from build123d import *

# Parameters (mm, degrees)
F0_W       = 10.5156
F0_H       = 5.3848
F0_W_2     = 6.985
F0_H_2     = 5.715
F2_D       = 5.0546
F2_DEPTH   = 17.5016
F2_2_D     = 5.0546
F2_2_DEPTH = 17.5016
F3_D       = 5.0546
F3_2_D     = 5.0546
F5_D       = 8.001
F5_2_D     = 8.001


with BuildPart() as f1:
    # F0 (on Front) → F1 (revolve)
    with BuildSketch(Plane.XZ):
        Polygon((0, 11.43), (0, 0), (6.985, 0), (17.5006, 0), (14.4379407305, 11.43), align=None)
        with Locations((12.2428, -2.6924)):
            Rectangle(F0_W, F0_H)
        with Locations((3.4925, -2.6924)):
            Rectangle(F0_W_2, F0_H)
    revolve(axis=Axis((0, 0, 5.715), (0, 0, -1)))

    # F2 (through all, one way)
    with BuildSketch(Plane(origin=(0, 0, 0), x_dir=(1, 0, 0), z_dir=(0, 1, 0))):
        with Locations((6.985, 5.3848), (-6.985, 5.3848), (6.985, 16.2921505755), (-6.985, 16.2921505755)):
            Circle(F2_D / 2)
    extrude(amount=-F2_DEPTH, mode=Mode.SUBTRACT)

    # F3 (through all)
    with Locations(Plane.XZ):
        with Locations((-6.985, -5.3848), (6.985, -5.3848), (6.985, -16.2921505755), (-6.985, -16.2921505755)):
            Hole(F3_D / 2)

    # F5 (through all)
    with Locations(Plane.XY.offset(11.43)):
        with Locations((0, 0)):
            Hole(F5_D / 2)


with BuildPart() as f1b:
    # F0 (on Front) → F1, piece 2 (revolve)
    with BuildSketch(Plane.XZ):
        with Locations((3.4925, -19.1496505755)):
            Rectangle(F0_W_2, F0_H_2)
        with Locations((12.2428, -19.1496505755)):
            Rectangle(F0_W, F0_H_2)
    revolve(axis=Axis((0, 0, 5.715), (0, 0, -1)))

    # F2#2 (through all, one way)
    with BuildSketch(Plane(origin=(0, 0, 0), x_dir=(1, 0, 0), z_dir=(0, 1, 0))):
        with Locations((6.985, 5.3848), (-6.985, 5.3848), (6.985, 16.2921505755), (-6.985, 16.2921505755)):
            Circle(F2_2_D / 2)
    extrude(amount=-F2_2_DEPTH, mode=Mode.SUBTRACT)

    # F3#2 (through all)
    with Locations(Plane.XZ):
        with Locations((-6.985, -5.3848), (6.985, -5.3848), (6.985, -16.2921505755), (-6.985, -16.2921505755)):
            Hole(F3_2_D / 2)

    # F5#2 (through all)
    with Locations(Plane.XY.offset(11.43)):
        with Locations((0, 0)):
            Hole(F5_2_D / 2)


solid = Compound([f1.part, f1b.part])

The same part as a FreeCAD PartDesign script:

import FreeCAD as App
import Part
import Sketcher
from FreeCAD import Vector
Q = App.Units.Quantity

doc = App.newDocument("Part")
body = doc.addObject("PartDesign::Body", "Body")

sketch1 = body.newObject("Sketcher::SketchObject", "Sketch")
sketch1.AttachmentSupport = (doc.getObject("XZ_Plane"), [""])
sketch1.MapMode = "FlatFace"
sketch1.addGeometry([
    Part.LineSegment(Vector(0, 11, 0), Vector(0, -5, 0)),
    Part.LineSegment(Vector(0, -5, 0), Vector(18, -5, 0)),
    Part.LineSegment(Vector(18, -5, 0), Vector(18, 0, 0)),
    Part.LineSegment(Vector(18, 0, 0), Vector(14, 11, 0)),
    Part.LineSegment(Vector(14, 11, 0), Vector(0, 11, 0)),
], False)
sketch1.addConstraint([
    Sketcher.Constraint("Coincident", 0, 2, 1, 1),
    Sketcher.Constraint("Coincident", 1, 2, 2, 1),
    Sketcher.Constraint("Coincident", 2, 2, 3, 1),
    Sketcher.Constraint("Coincident", 3, 2, 4, 1),
    Sketcher.Constraint("Coincident", 4, 2, 0, 1),
    Sketcher.Constraint("Vertical", 0),
    Sketcher.Constraint("Horizontal", 1),
    Sketcher.Constraint("Vertical", 2),
    Sketcher.Constraint("Horizontal", 4),
    Sketcher.Constraint("PointOnObject", 0, 2, -2),
    Sketcher.Constraint("PointOnObject", 2, 2, -1),
    Sketcher.Constraint("Angle", 3, Q("105 deg")),
    Sketcher.Constraint("DistanceX", 1, 1, 1, 2, Q("0.689 in")),
    Sketcher.Constraint("DistanceY", 0, 2, 0, 1, Q("0.662 in")),
    Sketcher.Constraint("DistanceY", 2, 1, 2, 2, Q("0.212 in")),
])
revolution = body.newObject("PartDesign::Revolution", "Revolution")
revolution.Profile = sketch1
revolution.ReferenceAxis = (sketch1, ["V_Axis"])
revolution.Angle = 360

sketch2 = body.newObject("Sketcher::SketchObject", "Sketch001")
sketch2.AttachmentSupport = (doc.getObject("XZ_Plane"), [""])
sketch2.MapMode = "FlatFace"
sketch2.addGeometry([
    Part.Circle(Vector(-7, -16.3, 0), Vector(0, 0, 1), 2.5),
    Part.Circle(Vector(7, -5.4, 0), Vector(0, 0, 1), 2.5),
    Part.Circle(Vector(-7, -5.4, 0), Vector(0, 0, 1), 2.5),
    Part.Circle(Vector(7, -16.3, 0), Vector(0, 0, 1), 2.5),
], False)
sketch2.addConstraint([
    Sketcher.Constraint("Equal", 0, 1),
    Sketcher.Constraint("Equal", 1, 2),
    Sketcher.Constraint("Equal", 2, 3),
    Sketcher.Constraint("Symmetric", 1, 3, 2, 3, -2),
    Sketcher.Constraint("Symmetric", 0, 3, 3, 3, -2),
    Sketcher.Constraint("Vertical", 0, 3, 2, 3),
    Sketcher.Constraint("Diameter", 0, Q("0.199 in")),
    Sketcher.Constraint("DistanceX", 0, 3, 1, 3, Q("0.55 in")),
    Sketcher.Constraint("DistanceY", 1, 3, -1, 1, Q("0.212 in")),
    Sketcher.Constraint("DistanceY", 0, 3, -1, 1, Q("16.292151 mm")),
])
pocket1 = body.newObject("PartDesign::Pocket", "Pocket")
pocket1.Profile = sketch2
pocket1.Type = "ThroughAll"
pocket1.Reversed = True

sketch3 = body.newObject("Sketcher::SketchObject", "Sketch002")
sketch3.AttachmentSupport = (doc.getObject("XZ_Plane"), [""])
sketch3.MapMode = "FlatFace"
sketch3.addGeometry([
    Part.Circle(Vector(-7, -5.4, 0), Vector(0, 0, 1), 2.5),
    Part.Circle(Vector(7, -5.4, 0), Vector(0, 0, 1), 2.5),
    Part.Circle(Vector(7, -16.3, 0), Vector(0, 0, 1), 2.5),
    Part.Circle(Vector(-7, -16.3, 0), Vector(0, 0, 1), 2.5),
], False)
sketch3.addConstraint([
    Sketcher.Constraint("Equal", 0, 1),
    Sketcher.Constraint("Equal", 1, 2),
    Sketcher.Constraint("Equal", 2, 3),
    Sketcher.Constraint("Symmetric", 0, 3, 1, 3, -2),
    Sketcher.Constraint("Symmetric", 2, 3, 3, 3, -2),
    Sketcher.Constraint("Vertical", 1, 3, 2, 3),
    Sketcher.Constraint("Diameter", 0, Q("0.199 in")),
    Sketcher.Constraint("DistanceX", 0, 3, 1, 3, Q("0.55 in")),
    Sketcher.Constraint("DistanceY", 0, 3, -1, 1, Q("0.212 in")),
    Sketcher.Constraint("DistanceY", 2, 3, -1, 1, Q("16.292151 mm")),
])
doc.recompute()
hole = body.newObject("PartDesign::Hole", "Hole")
hole.Profile = sketch3
hole.ThreadType = "None"
hole.Diameter = Q("0.199 in")
hole.DepthType = "ThroughAll"

sketch4 = body.newObject("Sketcher::SketchObject", "Sketch003")
sketch4.AttachmentSupport = (doc.getObject("XY_Plane"), [""])
sketch4.MapMode = "FlatFace"
sketch4.AttachmentOffset = App.Placement(Vector(0, 0, 0.45 * 25.4), App.Rotation())
sketch4.addGeometry(Part.Circle(Vector(0, 0, 0), Vector(0, 0, 1), 4), False)
sketch4.addConstraint([
    Sketcher.Constraint("Coincident", 0, 3, -1, 1),
    Sketcher.Constraint("Diameter", 0, Q("0.315 in")),
])
doc.recompute()
hole2 = body.newObject("PartDesign::Hole", "Hole001")
hole2.Profile = sketch4
hole2.ThreadType = "None"
hole2.Diameter = Q("0.315 in")
hole2.DepthType = "ThroughAll"
body2 = doc.addObject("PartDesign::Body", "Body001")

sketch5 = body2.newObject("Sketcher::SketchObject", "Sketch004")
sketch5.AttachmentSupport = (doc.getObject("XZ_Plane001"), [""])
sketch5.MapMode = "FlatFace"
sketch5.addGeometry([
    Part.LineSegment(Vector(0, -16, 0), Vector(0, -22, 0)),
    Part.LineSegment(Vector(0, -22, 0), Vector(18, -22, 0)),
    Part.LineSegment(Vector(18, -22, 0), Vector(18, -16, 0)),
    Part.LineSegment(Vector(18, -16, 0), Vector(0, -16, 0)),
], False)
sketch5.addConstraint([
    Sketcher.Constraint("Coincident", 0, 2, 1, 1),
    Sketcher.Constraint("Coincident", 1, 2, 2, 1),
    Sketcher.Constraint("Coincident", 2, 2, 3, 1),
    Sketcher.Constraint("Coincident", 3, 2, 0, 1),
    Sketcher.Constraint("Vertical", 0),
    Sketcher.Constraint("Horizontal", 1),
    Sketcher.Constraint("Vertical", 2),
    Sketcher.Constraint("Horizontal", 3),
    Sketcher.Constraint("PointOnObject", 0, 2, -2),
    Sketcher.Constraint("DistanceX", 1, 1, 1, 2, Q("0.689 in")),
    Sketcher.Constraint("DistanceY", 0, 2, 0, 1, Q("0.225 in")),
    Sketcher.Constraint("DistanceY", 0, 2, -1, 1, Q("22.007151 mm")),
])
revolution2 = body2.newObject("PartDesign::Revolution", "Revolution001")
revolution2.Profile = sketch5
revolution2.ReferenceAxis = (sketch5, ["V_Axis"])
revolution2.Angle = 360

sketch6 = body2.newObject("Sketcher::SketchObject", "Sketch005")
sketch6.AttachmentSupport = (doc.getObject("XZ_Plane001"), [""])
sketch6.MapMode = "FlatFace"
sketch6.addGeometry([
    Part.Circle(Vector(-7, -16.3, 0), Vector(0, 0, 1), 2.5),
    Part.Circle(Vector(7, -5.4, 0), Vector(0, 0, 1), 2.5),
    Part.Circle(Vector(-7, -5.4, 0), Vector(0, 0, 1), 2.5),
    Part.Circle(Vector(7, -16.3, 0), Vector(0, 0, 1), 2.5),
], False)
sketch6.addConstraint([
    Sketcher.Constraint("Equal", 0, 1),
    Sketcher.Constraint("Equal", 1, 2),
    Sketcher.Constraint("Equal", 2, 3),
    Sketcher.Constraint("Symmetric", 1, 3, 2, 3, -2),
    Sketcher.Constraint("Symmetric", 0, 3, 3, 3, -2),
    Sketcher.Constraint("Vertical", 0, 3, 2, 3),
    Sketcher.Constraint("Diameter", 0, Q("0.199 in")),
    Sketcher.Constraint("DistanceX", 0, 3, 1, 3, Q("0.55 in")),
    Sketcher.Constraint("DistanceY", 1, 3, -1, 1, Q("0.212 in")),
    Sketcher.Constraint("DistanceY", 0, 3, -1, 1, Q("16.292151 mm")),
])
pocket2 = body2.newObject("PartDesign::Pocket", "Pocket001")
pocket2.Profile = sketch6
pocket2.Type = "ThroughAll"
pocket2.Reversed = True

sketch7 = body2.newObject("Sketcher::SketchObject", "Sketch006")
sketch7.AttachmentSupport = (doc.getObject("XZ_Plane001"), [""])
sketch7.MapMode = "FlatFace"
sketch7.addGeometry([
    Part.Circle(Vector(-7, -5.4, 0), Vector(0, 0, 1), 2.5),
    Part.Circle(Vector(7, -5.4, 0), Vector(0, 0, 1), 2.5),
    Part.Circle(Vector(7, -16.3, 0), Vector(0, 0, 1), 2.5),
    Part.Circle(Vector(-7, -16.3, 0), Vector(0, 0, 1), 2.5),
], False)
sketch7.addConstraint([
    Sketcher.Constraint("Equal", 0, 1),
    Sketcher.Constraint("Equal", 1, 2),
    Sketcher.Constraint("Equal", 2, 3),
    Sketcher.Constraint("Symmetric", 0, 3, 1, 3, -2),
    Sketcher.Constraint("Symmetric", 2, 3, 3, 3, -2),
    Sketcher.Constraint("Vertical", 1, 3, 2, 3),
    Sketcher.Constraint("Diameter", 0, Q("0.199 in")),
    Sketcher.Constraint("DistanceX", 0, 3, 1, 3, Q("0.55 in")),
    Sketcher.Constraint("DistanceY", 0, 3, -1, 1, Q("0.212 in")),
    Sketcher.Constraint("DistanceY", 2, 3, -1, 1, Q("16.292151 mm")),
])
doc.recompute()
hole3 = body2.newObject("PartDesign::Hole", "Hole002")
hole3.Profile = sketch7
hole3.ThreadType = "None"
hole3.Diameter = Q("0.199 in")
hole3.DepthType = "ThroughAll"

sketch8 = body2.newObject("Sketcher::SketchObject", "Sketch007")
sketch8.AttachmentSupport = (doc.getObject("XY_Plane001"), [""])
sketch8.MapMode = "FlatFace"
sketch8.AttachmentOffset = App.Placement(Vector(0, 0, 0.45 * 25.4), App.Rotation())
sketch8.addGeometry(Part.Circle(Vector(0, 0, 0), Vector(0, 0, 1), 4), False)
sketch8.addConstraint([
    Sketcher.Constraint("Coincident", 0, 3, -1, 1),
    Sketcher.Constraint("Diameter", 0, Q("0.315 in")),
])
doc.recompute()
hole4 = body2.newObject("PartDesign::Hole", "Hole003")
hole4.Profile = sketch8
hole4.ThreadType = "None"
hole4.Diameter = Q("0.315 in")
hole4.DepthType = "ThroughAll"

doc.recompute()
